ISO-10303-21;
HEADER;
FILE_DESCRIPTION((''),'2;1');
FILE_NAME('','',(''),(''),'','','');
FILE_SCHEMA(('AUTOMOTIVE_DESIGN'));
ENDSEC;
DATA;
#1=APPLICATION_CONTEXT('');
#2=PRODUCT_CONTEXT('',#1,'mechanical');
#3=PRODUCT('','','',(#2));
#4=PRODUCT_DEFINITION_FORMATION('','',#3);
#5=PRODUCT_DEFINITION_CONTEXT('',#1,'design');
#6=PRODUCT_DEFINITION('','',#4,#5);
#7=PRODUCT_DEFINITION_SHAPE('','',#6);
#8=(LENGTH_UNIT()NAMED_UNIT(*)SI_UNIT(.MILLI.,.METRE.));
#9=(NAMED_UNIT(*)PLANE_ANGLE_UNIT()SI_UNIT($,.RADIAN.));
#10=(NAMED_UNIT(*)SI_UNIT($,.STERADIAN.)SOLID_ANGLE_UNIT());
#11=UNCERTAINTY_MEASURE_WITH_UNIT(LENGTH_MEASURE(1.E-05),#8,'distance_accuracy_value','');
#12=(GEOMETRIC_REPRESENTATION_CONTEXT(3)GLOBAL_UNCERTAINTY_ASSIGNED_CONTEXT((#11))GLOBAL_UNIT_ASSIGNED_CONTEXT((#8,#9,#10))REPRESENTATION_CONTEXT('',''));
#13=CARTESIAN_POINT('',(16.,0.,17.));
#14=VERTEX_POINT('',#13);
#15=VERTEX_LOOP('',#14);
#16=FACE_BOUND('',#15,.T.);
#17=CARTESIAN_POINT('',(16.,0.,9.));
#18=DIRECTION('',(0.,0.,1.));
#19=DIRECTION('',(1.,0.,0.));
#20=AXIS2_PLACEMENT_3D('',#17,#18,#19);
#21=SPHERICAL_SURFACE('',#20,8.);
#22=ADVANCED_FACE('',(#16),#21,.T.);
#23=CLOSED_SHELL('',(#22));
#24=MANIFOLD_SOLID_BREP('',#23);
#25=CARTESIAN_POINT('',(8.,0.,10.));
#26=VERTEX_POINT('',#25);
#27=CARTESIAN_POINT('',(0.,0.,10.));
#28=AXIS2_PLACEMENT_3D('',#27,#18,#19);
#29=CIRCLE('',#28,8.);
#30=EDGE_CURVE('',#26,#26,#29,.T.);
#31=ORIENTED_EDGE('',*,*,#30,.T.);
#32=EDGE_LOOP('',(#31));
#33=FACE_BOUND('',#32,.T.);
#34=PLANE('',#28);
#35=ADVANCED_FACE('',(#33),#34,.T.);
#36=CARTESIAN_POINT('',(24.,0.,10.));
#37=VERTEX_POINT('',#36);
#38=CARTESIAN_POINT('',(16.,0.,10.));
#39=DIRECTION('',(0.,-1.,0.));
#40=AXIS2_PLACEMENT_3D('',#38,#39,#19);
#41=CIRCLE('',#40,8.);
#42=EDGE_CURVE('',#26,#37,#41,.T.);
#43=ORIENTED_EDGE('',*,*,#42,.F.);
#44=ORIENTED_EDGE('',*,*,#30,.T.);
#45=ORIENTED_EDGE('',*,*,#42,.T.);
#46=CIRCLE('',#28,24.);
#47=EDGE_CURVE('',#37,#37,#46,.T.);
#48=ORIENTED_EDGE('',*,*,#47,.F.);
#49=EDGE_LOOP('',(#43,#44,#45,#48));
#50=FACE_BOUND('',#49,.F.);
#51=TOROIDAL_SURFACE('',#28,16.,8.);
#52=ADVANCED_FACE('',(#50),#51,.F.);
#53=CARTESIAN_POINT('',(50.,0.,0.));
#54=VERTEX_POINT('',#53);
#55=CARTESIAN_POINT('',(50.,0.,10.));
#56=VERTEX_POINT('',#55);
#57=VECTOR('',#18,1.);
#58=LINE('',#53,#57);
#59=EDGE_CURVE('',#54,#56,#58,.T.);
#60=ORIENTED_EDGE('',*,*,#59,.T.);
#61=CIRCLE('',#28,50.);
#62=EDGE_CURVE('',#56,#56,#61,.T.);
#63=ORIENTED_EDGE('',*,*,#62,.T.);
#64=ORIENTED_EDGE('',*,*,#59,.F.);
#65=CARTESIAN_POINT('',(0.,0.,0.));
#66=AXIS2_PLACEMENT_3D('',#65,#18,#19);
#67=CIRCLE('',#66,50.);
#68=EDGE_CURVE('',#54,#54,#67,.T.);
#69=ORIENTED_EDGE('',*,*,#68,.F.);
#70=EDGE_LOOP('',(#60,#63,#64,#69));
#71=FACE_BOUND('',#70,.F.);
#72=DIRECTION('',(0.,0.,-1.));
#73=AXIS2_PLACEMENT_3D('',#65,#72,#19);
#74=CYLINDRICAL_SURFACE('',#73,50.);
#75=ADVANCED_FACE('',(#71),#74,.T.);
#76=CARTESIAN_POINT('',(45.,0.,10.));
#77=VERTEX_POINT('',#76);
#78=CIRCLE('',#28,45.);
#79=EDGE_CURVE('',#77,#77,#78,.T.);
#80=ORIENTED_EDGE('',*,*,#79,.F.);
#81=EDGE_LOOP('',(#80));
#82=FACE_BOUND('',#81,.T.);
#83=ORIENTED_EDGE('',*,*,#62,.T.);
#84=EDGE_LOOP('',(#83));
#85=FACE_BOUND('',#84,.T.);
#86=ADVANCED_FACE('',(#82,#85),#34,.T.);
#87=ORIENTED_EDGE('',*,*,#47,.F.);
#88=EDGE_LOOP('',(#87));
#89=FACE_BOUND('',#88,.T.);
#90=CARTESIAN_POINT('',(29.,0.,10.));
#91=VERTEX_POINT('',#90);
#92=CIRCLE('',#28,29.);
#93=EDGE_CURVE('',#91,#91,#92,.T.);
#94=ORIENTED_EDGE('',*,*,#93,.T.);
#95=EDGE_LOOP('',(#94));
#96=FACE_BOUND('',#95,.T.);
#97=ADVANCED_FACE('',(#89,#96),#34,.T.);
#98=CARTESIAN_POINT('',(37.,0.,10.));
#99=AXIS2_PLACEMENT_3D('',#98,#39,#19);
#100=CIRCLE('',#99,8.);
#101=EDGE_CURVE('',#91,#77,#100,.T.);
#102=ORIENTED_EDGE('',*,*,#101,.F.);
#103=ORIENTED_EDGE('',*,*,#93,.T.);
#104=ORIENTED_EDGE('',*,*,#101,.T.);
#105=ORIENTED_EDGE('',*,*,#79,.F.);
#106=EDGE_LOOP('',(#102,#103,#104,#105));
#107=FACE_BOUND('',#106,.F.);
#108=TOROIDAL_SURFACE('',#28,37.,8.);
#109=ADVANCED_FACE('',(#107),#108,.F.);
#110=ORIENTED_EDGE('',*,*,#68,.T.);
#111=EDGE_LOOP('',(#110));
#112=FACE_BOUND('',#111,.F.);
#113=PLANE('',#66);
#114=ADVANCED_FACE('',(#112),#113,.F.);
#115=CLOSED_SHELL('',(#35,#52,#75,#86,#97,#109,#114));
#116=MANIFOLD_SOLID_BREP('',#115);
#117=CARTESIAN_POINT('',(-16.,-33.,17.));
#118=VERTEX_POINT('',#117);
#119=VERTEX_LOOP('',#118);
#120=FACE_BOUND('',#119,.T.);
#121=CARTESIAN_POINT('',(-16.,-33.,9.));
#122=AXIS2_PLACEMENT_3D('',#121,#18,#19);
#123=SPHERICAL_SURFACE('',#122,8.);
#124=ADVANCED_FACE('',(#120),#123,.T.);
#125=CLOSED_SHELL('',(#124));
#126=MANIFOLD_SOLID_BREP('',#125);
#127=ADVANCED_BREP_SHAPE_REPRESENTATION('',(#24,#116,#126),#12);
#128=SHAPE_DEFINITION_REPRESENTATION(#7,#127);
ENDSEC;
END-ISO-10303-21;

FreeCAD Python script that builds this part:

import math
import FreeCAD as App
import Part
import Sketcher
from FreeCAD import Vector

doc = App.newDocument("Part")
body = doc.addObject("PartDesign::Body", "Body")

sketch1 = body.newObject("Sketcher::SketchObject", "Sketch")
sketch1.AttachmentSupport = (doc.getObject("XZ_Plane"), [""])
sketch1.MapMode = "FlatFace"
sketch1.addGeometry(Part.Circle(Vector(16, 10, 0), Vector(0, 0, 1), 8), False)
sketch1.addConstraint([
    Sketcher.Constraint("Diameter", 0, 16.0),
    Sketcher.Constraint("DistanceX", -1, 1, 0, 3, 16.0),
    Sketcher.Constraint("DistanceY", -1, 1, 0, 3, 10.0),
])
revolution = body.newObject("PartDesign::Revolution", "Revolution")
revolution.Profile = sketch1
revolution.ReferenceAxis = (sketch1, ["V_Axis"])
revolution.Angle = 360
body2 = doc.addObject("PartDesign::Body", "Body001")
body2.AllowCompound = True

sketch2 = body2.newObject("Sketcher::SketchObject", "Sketch001")
sketch2.AttachmentSupport = (doc.getObject("XZ_Plane001"), [""])
sketch2.MapMode = "FlatFace"
sketch2.addGeometry(Part.Circle(Vector(37, 10, 0), Vector(0, 0, 1), 8), False)
sketch2.addConstraint([
    Sketcher.Constraint("Diameter", 0, 16.0),
    Sketcher.Constraint("DistanceX", -1, 1, 0, 3, 37.0),
    Sketcher.Constraint("DistanceY", -1, 1, 0, 3, 10.0),
])
revolution2 = body2.newObject("PartDesign::Revolution", "Revolution001")
revolution2.Profile = sketch2
revolution2.ReferenceAxis = (sketch2, ["V_Axis"])
revolution2.Angle = 360
doc.recompute()

boolean = body2.newObject("PartDesign::Boolean", "Boolean")
boolean.Type = "Fuse"
boolean.addObjects([body])
body3 = doc.addObject("PartDesign::Body", "Body002")

sketch3 = body3.newObject("Sketcher::SketchObject", "Sketch002")
sketch3.AttachmentSupport = (doc.getObject("XY_Plane002"), [""])
sketch3.MapMode = "FlatFace"
sketch3.addGeometry(Part.Circle(Vector(0, 0, 0), Vector(0, 0, 1), 50), False)
sketch3.addConstraint([
    Sketcher.Constraint("Coincident", 0, 3, -1, 1),
    Sketcher.Constraint("Diameter", 0, 100.0),
])
pad1 = body3.newObject("PartDesign::Pad", "Pad")
pad1.Profile = sketch3
pad1.Length = 10
doc.recompute()

boolean2 = body3.newObject("PartDesign::Boolean", "Boolean001")
boolean2.Type = "Cut"
boolean2.addObjects([body2])
body4 = doc.addObject("PartDesign::Body", "Body003")

sketch4 = body4.newObject("Sketcher::SketchObject", "Sketch003")
sketch4.AttachmentSupport = (doc.getObject("XZ_Plane003"), [""])
sketch4.MapMode = "FlatFace"
sketch4.addGeometry([
    Part.ArcOfCircle(Part.Circle(Vector(16, 9, 0), Vector(0, 0, 1), 8), math.radians(-90), math.radians(90)),
    Part.LineSegment(Vector(16, 17, 0), Vector(16, 1, 0)),
], False)
sketch4.addGeometry(Part.LineSegment(Vector(16, 1, 0), Vector(16, 17, 0)), True)
sketch4.addConstraint([
    Sketcher.Constraint("Coincident", 0, 1, 1, 2),
    Sketcher.Constraint("Coincident", 1, 1, 0, 2),
    Sketcher.Constraint("Vertical", 1),
    Sketcher.Constraint("Vertical", 2),
    Sketcher.Constraint("Coincident", 2, 1, 0, 1),
    Sketcher.Constraint("Equal", 1, 2),
    Sketcher.Constraint("Radius", 0, 8.0),
    Sketcher.Constraint("DistanceX", -1, 1, 0, 3, 16.0),
    Sketcher.Constraint("DistanceY", -1, 1, 0, 3, 9.0),
    Sketcher.Constraint("DistanceX", -1, 1, 0, 1, 16.0),
])
revolution3 = body4.newObject("PartDesign::Revolution", "Revolution002")
revolution3.Profile = sketch4
revolution3.ReferenceAxis = (sketch4, ["Axis0"])
revolution3.Angle = 360
body5 = doc.addObject("PartDesign::Body", "Body004")

sketch5 = body5.newObject("Sketcher::SketchObject", "Sketch004")
sketch5.AttachmentSupport = (doc.getObject("XZ_Plane004"), [""])
sketch5.MapMode = "FlatFace"
sketch5.AttachmentOffset = App.Placement(Vector(0, 0, 33), App.Rotation())
sketch5.addGeometry([
    Part.ArcOfCircle(Part.Circle(Vector(-16, 9, 0), Vector(0, 0, 1), 8), math.radians(-90), math.radians(90)),
    Part.LineSegment(Vector(-16, 17, 0), Vector(-16, 1, 0)),
], False)
sketch5.addGeometry(Part.LineSegment(Vector(-16, 1, 0), Vector(-16, 17, 0)), True)
sketch5.addConstraint([
    Sketcher.Constraint("Coincident", 0, 1, 1, 2),
    Sketcher.Constraint("Coincident", 1, 1, 0, 2),
    Sketcher.Constraint("Vertical", 1),
    Sketcher.Constraint("Vertical", 2),
    Sketcher.Constraint("Coincident", 2, 1, 0, 1),
    Sketcher.Constraint("Equal", 1, 2),
    Sketcher.Constraint("Radius", 0, 8.0),
    Sketcher.Constraint("DistanceX", 0, 3, -1, 1, 16.0),
    Sketcher.Constraint("DistanceY", -1, 1, 0, 3, 9.0),
    Sketcher.Constraint("DistanceX", 0, 1, -1, 1, 16.0),
])
revolution4 = body5.newObject("PartDesign::Revolution", "Revolution003")
revolution4.Profile = sketch5
revolution4.ReferenceAxis = (sketch5, ["Axis0"])
revolution4.Angle = 360

doc.recompute()
